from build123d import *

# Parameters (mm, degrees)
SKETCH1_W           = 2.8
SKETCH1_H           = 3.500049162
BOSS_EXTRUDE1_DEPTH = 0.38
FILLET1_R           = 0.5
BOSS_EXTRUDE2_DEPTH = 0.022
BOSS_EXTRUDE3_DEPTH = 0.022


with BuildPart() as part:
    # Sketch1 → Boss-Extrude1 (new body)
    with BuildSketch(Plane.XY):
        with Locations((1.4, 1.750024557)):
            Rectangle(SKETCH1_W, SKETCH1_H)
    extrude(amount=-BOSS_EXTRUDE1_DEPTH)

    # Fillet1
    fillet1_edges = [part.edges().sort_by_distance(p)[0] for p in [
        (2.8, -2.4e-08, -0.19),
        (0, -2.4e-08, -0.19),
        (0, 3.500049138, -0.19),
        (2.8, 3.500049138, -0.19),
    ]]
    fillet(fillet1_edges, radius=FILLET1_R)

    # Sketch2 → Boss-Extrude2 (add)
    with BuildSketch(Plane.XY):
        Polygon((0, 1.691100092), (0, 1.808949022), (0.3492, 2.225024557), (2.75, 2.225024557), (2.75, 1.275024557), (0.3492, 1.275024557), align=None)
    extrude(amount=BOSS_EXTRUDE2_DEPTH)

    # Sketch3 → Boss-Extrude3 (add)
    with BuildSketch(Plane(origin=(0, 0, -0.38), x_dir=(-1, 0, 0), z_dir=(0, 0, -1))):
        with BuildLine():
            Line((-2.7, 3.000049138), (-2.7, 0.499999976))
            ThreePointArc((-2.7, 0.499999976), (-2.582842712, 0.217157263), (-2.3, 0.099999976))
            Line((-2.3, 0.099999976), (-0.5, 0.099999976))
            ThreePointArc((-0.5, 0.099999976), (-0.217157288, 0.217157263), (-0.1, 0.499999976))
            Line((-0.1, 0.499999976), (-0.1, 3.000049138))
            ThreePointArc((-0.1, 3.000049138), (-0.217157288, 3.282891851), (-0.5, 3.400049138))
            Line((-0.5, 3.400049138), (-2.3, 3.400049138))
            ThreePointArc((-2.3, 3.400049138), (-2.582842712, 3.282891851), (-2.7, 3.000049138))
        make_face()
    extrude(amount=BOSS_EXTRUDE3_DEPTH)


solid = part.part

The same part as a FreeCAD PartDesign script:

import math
import FreeCAD as App
import Part
import Sketcher
from FreeCAD import Vector
Q = App.Units.Quantity


def edges_at(feature, points):
    """Names of the edges that pass closest to the given points."""
    edges = feature.Shape.Edges
    near = lambda p: min(range(len(edges)), key=lambda i: edges[i].distToShape(Part.Vertex(*p))[0])
    return sorted({f"Edge{near(p) + 1}" for p in points})

doc = App.newDocument("Part")
params = doc.addObject("Spreadsheet::Sheet", "Params")
for row, (alias, value) in enumerate([
    ("sketch1_width", "2.8 mm"),
    ("pad1_length", "0.38 mm"),
    ("fillet_radius", "0.5 mm"),
    ("sketch2_height", "0.95 mm"),
    ("pad2_length", "0.022 mm"),
    ("sketch3_radius", "0.4 mm"),
    ("sketch3_width", "1.8 mm"),
    ("pad3_length", "0.022 mm"),
], start=1):
    params.set(f"A{row}", alias)
    params.set(f"B{row}", "=" + value)
    params.setAlias(f"B{row}", alias)

body = doc.addObject("PartDesign::Body", "Body")

sketch1 = body.newObject("Sketcher::SketchObject", "Sketch")
sketch1.AttachmentSupport = (doc.getObject("XY_Plane"), [""])
sketch1.MapMode = "FlatFace"
sketch1.addGeometry([
    Part.LineSegment(Vector(0, 3.5, 0), Vector(0, 0, 0)),
    Part.LineSegment(Vector(0, 0, 0), Vector(2.8, 0, 0)),
    Part.LineSegment(Vector(2.8, 0, 0), Vector(2.8, 3.5, 0)),
    Part.LineSegment(Vector(2.8, 3.5, 0), Vector(0, 3.5, 0)),
], False)
sketch1.addConstraint([
    Sketcher.Constraint("Coincident", 0, 2, 1, 1),
    Sketcher.Constraint("Coincident", 1, 2, 2, 1),
    Sketcher.Constraint("Coincident", 2, 2, 3, 1),
    Sketcher.Constraint("Coincident", 3, 2, 0, 1),
    Sketcher.Constraint("Vertical", 0),
    Sketcher.Constraint("Horizontal", 1),
    Sketcher.Constraint("Vertical", 2),
    Sketcher.Constraint("Horizontal", 3),
    Sketcher.Constraint("Coincident", 0, 2, -1, 1),
    Sketcher.Constraint("DistanceX", 1, 1, 1, 2, Q("2.8 mm")),
    Sketcher.Constraint("DistanceY", 0, 2, 0, 1, Q("3.500049 mm")),
])
sketch1.setExpression("Constraints[9]", "Params.sketch1_width")
pad1 = body.newObject("PartDesign::Pad", "Pad")
pad1.Profile = sketch1
pad1.setExpression("Length", "Params.pad1_length")
pad1.Reversed = True
doc.recompute()

fillet = body.newObject("PartDesign::Fillet", "Fillet")
fillet.Base = (pad1, edges_at(pad1, [
    (2.8, 0, -0.19),
    (0, 0, -0.19),
    (0, 3.5, -0.19),
    (2.8, 3.5, -0.19),
]))
fillet.setExpression("Radius", "Params.fillet_radius")

sketch2 = body.newObject("Sketcher::SketchObject", "Sketch001")
sketch2.AttachmentSupport = (doc.getObject("XY_Plane"), [""])
sketch2.MapMode = "FlatFace"
sketch2.addGeometry([
    Part.LineSegment(Vector(0, 1.81, 0), Vector(0, 1.69, 0)),
    Part.LineSegment(Vector(0, 1.69, 0), Vector(0.35, 1.28, 0)),
    Part.LineSegment(Vector(0.35, 1.28, 0), Vector(2.75, 1.28, 0)),
    Part.LineSegment(Vector(2.75, 1.28, 0), Vector(2.75, 2.23, 0)),
    Part.LineSegment(Vector(2.75, 2.23, 0), Vector(0.35, 2.23, 0)),
    Part.LineSegment(Vector(0.35, 2.23, 0), Vector(0, 1.81, 0)),
], False)
sketch2.addConstraint([
    Sketcher.Constraint("Coincident", 0, 2, 1, 1),
    Sketcher.Constraint("Coincident", 1, 2, 2, 1),
    Sketcher.Constraint("Coincident", 2, 2, 3, 1),
    Sketcher.Constraint("Coincident", 3, 2, 4, 1),
    Sketcher.Constraint("Coincident", 4, 2, 5, 1),
    Sketcher.Constraint("Coincident", 5, 2, 0, 1),
    Sketcher.Constraint("Vertical", 0),
    Sketcher.Constraint("Horizontal", 2),
    Sketcher.Constraint("Vertical", 3),
    Sketcher.Constraint("Horizontal", 4),
    Sketcher.Constraint("PointOnObject", 0, 2, -2),
    Sketcher.Constraint("Vertical", 1, 2, 4, 2),
    Sketcher.Constraint("Equal", 1, 5),
    Sketcher.Constraint("DistanceY", 3, 1, 3, 2, Q("0.95 mm")),
    Sketcher.Constraint("DistanceX", -1, 1, 2, 2, Q("2.75 mm")),
    Sketcher.Constraint("DistanceX", 2, 1, 2, 2, Q("2.4008 mm")),
    Sketcher.Constraint("DistanceY", 0, 2, 0, 1, Q("0.117849 mm")),
    Sketcher.Constraint("DistanceY", -1, 1, 0, 2, Q("1.6911 mm")),
])
sketch2.setExpression("Constraints[13]", "Params.sketch2_height")
pad2 = body.newObject("PartDesign::Pad", "Pad001")
pad2.Profile = sketch2
pad2.setExpression("Length", "Params.pad2_length")

sketch3 = body.newObject("Sketcher::SketchObject", "Sketch002")
sketch3.AttachmentSupport = (doc.getObject("XY_Plane"), [""])
sketch3.MapMode = "FlatFace"
sketch3.AttachmentOffset = App.Placement(Vector(0, 0, -0.38), App.Rotation())
sketch3.addGeometry([
    Part.LineSegment(Vector(2.7, 3, 0), Vector(2.7, 0.5, 0)),
    Part.ArcOfCircle(Part.Circle(Vector(2.3, 0.5, 0), Vector(0, 0, 1), 0.4), math.radians(-90), math.radians(0)),
    Part.LineSegment(Vector(2.3, 0.1, 0), Vector(0.5, 0.1, 0)),
    Part.ArcOfCircle(Part.Circle(Vector(0.5, 0.5, 0), Vector(0, 0, 1), 0.4), math.radians(180), math.radians(270)),
    Part.LineSegment(Vector(0.1, 0.5, 0), Vector(0.1, 3, 0)),
    Part.ArcOfCircle(Part.Circle(Vector(0.5, 3, 0), Vector(0, 0, 1), 0.4), math.radians(90), math.radians(180)),
    Part.LineSegment(Vector(0.5, 3.4, 0), Vector(2.3, 3.4, 0)),
    Part.ArcOfCircle(Part.Circle(Vector(2.3, 3, 0), Vector(0, 0, 1), 0.4), math.radians(0), math.radians(90)),
], False)
sketch3.addConstraint([
    Sketcher.Constraint("Tangent", 0, 2, 1, 2),
    Sketcher.Constraint("Tangent", 1, 1, 2, 1),
    Sketcher.Constraint("Tangent", 2, 2, 3, 2),
    Sketcher.Constraint("Tangent", 3, 1, 4, 1),
    Sketcher.Constraint("Tangent", 4, 2, 5, 2),
    Sketcher.Constraint("Tangent", 5, 1, 6, 1),
    Sketcher.Constraint("Tangent", 6, 2, 7, 2),
    Sketcher.Constraint("Tangent", 7, 1, 0, 1),
    Sketcher.Constraint("Vertical", 0),
    Sketcher.Constraint("Horizontal", 2),
    Sketcher.Constraint("Vertical", 4),
    Sketcher.Constraint("Horizontal", 6),
    Sketcher.Constraint("Equal", 1, 3),
    Sketcher.Constraint("Equal", 3, 5),
    Sketcher.Constraint("Equal", 5, 7),
    Sketcher.Constraint("Radius", 1, Q("0.4 mm")),
    Sketcher.Constraint("DistanceX", 2, 2, 2, 1, Q("1.8 mm")),
    Sketcher.Constraint("DistanceX", -1, 1, 1, 3, Q("2.3 mm")),
    Sketcher.Constraint("DistanceY", -1, 1, 1, 3, Q("0.5 mm")),
    Sketcher.Constraint("DistanceY", 0, 2, 0, 1, Q("2.500049 mm")),
])
sketch3.setExpression("Constraints[15]", "Params.sketch3_radius")
sketch3.setExpression("Constraints[16]", "Params.sketch3_width")
pad3 = body.newObject("PartDesign::Pad", "Pad002")
pad3.Profile = sketch3
pad3.setExpression("Length", "Params.pad3_length")
pad3.Reversed = True

doc.recompute()
